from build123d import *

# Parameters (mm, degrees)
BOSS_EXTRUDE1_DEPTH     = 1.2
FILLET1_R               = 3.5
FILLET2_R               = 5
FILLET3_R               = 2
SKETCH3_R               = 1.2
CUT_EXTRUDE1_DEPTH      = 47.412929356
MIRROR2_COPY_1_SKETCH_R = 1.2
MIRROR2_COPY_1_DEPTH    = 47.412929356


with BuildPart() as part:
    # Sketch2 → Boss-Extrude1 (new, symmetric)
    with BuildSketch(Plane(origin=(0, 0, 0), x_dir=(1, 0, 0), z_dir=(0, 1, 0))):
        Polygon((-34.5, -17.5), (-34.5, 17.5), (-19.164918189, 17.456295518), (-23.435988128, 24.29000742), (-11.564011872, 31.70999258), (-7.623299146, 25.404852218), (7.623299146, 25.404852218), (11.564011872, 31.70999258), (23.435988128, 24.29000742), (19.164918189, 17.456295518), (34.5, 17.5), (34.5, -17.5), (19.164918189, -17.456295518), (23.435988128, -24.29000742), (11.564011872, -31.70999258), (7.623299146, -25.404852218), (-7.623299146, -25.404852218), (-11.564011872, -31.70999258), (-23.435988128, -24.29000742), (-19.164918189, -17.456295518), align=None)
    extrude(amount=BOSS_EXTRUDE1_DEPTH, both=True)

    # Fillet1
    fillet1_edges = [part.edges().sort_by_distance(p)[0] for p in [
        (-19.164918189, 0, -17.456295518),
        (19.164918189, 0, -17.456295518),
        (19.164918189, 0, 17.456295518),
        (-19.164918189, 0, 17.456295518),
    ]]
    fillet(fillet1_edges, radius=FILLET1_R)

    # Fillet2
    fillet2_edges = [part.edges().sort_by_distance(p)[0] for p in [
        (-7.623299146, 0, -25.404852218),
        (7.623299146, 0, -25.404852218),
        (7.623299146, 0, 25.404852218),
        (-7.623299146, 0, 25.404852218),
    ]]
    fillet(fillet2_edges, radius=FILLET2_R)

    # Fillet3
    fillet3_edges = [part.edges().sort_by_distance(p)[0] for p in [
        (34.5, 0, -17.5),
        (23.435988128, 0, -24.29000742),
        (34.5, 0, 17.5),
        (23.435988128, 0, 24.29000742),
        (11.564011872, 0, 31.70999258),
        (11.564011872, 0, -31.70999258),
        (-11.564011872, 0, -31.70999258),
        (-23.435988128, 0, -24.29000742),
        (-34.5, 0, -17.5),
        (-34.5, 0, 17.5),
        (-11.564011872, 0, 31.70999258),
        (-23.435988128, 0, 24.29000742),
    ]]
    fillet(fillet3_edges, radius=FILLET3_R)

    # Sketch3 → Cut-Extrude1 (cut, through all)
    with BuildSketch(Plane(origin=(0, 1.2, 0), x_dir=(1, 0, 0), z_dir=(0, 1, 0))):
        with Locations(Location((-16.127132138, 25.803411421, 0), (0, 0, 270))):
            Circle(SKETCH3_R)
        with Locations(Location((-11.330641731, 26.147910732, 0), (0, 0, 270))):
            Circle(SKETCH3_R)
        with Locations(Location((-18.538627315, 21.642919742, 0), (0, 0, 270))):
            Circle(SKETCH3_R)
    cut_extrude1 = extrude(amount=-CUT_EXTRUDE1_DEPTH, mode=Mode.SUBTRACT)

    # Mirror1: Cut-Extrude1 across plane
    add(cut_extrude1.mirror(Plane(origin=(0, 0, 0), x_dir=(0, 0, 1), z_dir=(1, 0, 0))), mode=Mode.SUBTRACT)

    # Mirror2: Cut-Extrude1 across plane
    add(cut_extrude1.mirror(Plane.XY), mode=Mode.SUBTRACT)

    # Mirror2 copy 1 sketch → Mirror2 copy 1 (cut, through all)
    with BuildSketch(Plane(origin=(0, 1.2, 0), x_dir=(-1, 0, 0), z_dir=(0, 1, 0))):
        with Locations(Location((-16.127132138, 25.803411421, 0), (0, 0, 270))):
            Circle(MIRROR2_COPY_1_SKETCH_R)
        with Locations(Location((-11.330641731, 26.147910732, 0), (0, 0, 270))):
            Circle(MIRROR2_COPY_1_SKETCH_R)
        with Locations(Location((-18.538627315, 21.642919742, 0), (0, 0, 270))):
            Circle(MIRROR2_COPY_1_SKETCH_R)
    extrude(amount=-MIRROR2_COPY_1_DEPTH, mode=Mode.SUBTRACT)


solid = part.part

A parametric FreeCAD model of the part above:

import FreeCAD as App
import Part
import Sketcher

V = App.Vector
Q = App.Units.Quantity


def edges_at(feature, points):
    """Names of the edges that pass closest to the given points."""
    edges = feature.Shape.Edges
    near = lambda p: min(range(len(edges)), key=lambda i: edges[i].distToShape(Part.Vertex(*p))[0])
    return sorted({f"Edge{near(p) + 1}" for p in points})

doc = App.newDocument("Part")
body = doc.addObject("PartDesign::Body", "Body")

# Sketch on XZ plane
sketch1 = body.newObject("Sketcher::SketchObject", "Sketch")
sketch1.AttachmentSupport = (doc.getObject("XZ_Plane"), [""])
sketch1.MapMode = "FlatFace"
sketch1.addGeometry([
    Part.LineSegment(V(-34, -18, 0), V(-34, 18, 0)),  # 0
    Part.LineSegment(V(-34, 18, 0), V(-19, 17, 0)),  # 1
    Part.LineSegment(V(-19, 17, 0), V(-23, 24, 0)),  # 2
    Part.LineSegment(V(-23, 24, 0), V(-12, 32, 0)),  # 3
    Part.LineSegment(V(-12, 32, 0), V(-8, 25, 0)),  # 4
    Part.LineSegment(V(-8, 25, 0), V(8, 25, 0)),  # 5
    Part.LineSegment(V(8, 25, 0), V(12, 32, 0)),  # 6
    Part.LineSegment(V(12, 32, 0), V(23, 24, 0)),  # 7
    Part.LineSegment(V(23, 24, 0), V(19, 17, 0)),  # 8
    Part.LineSegment(V(19, 17, 0), V(34, 18, 0)),  # 9
    Part.LineSegment(V(34, 18, 0), V(34, -18, 0)),  # 10
    Part.LineSegment(V(34, -18, 0), V(19, -17, 0)),  # 11
    Part.LineSegment(V(19, -17, 0), V(23, -24, 0)),  # 12
    Part.LineSegment(V(23, -24, 0), V(12, -32, 0)),  # 13
    Part.LineSegment(V(12, -32, 0), V(8, -25, 0)),  # 14
    Part.LineSegment(V(8, -25, 0), V(-8, -25, 0)),  # 15
    Part.LineSegment(V(-8, -25, 0), V(-12, -32, 0)),  # 16
    Part.LineSegment(V(-12, -32, 0), V(-23, -24, 0)),  # 17
    Part.LineSegment(V(-23, -24, 0), V(-19, -17, 0)),  # 18
    Part.LineSegment(V(-19, -17, 0), V(-34, -18, 0)),  # 19
], False)
sketch1.addConstraint([
    Sketcher.Constraint("Coincident", 0, 2, 1, 1),
    Sketcher.Constraint("Coincident", 1, 2, 2, 1),
    Sketcher.Constraint("Coincident", 2, 2, 3, 1),
    Sketcher.Constraint("Coincident", 3, 2, 4, 1),
    Sketcher.Constraint("Coincident", 4, 2, 5, 1),
    Sketcher.Constraint("Coincident", 5, 2, 6, 1),
    Sketcher.Constraint("Coincident", 6, 2, 7, 1),
    Sketcher.Constraint("Coincident", 7, 2, 8, 1),
    Sketcher.Constraint("Coincident", 8, 2, 9, 1),
    Sketcher.Constraint("Coincident", 9, 2, 10, 1),
    Sketcher.Constraint("Coincident", 10, 2, 11, 1),
    Sketcher.Constraint("Coincident", 11, 2, 12, 1),
    Sketcher.Constraint("Coincident", 12, 2, 13, 1),
    Sketcher.Constraint("Coincident", 13, 2, 14, 1),
    Sketcher.Constraint("Coincident", 14, 2, 15, 1),
    Sketcher.Constraint("Coincident", 15, 2, 16, 1),
    Sketcher.Constraint("Coincident", 16, 2, 17, 1),
    Sketcher.Constraint("Coincident", 17, 2, 18, 1),
    Sketcher.Constraint("Coincident", 18, 2, 19, 1),
    Sketcher.Constraint("Coincident", 19, 2, 0, 1),
    Sketcher.Constraint("Vertical", 0),
    Sketcher.Constraint("Horizontal", 5),
    Sketcher.Constraint("Vertical", 10),
    Sketcher.Constraint("Horizontal", 15),
    Sketcher.Constraint("Symmetric", 0, 2, 10, 2, -1, 1),
    Sketcher.Constraint("Symmetric", 1, 2, 11, 2, -1, 1),
    Sketcher.Constraint("Symmetric", 2, 2, 12, 2, -1, 1),
    Sketcher.Constraint("Symmetric", 3, 2, 13, 2, -1, 1),
    Sketcher.Constraint("Symmetric", 4, 2, 14, 2, -1, 1),
    Sketcher.Constraint("Symmetric", 6, 2, 16, 2, -1, 1),
    Sketcher.Constraint("Symmetric", 7, 2, 17, 2, -1, 1),
    Sketcher.Constraint("Symmetric", 8, 2, 18, 2, -1, 1),
    Sketcher.Constraint("Symmetric", 3, 2, 6, 2, -2),
    Sketcher.Constraint("Symmetric", 2, 2, 7, 2, -2),
    Sketcher.Constraint("Symmetric", 1, 2, 8, 2, -2),
    Sketcher.Constraint("Perpendicular", 2, 3),
    Sketcher.Constraint("Perpendicular", 3, 4),
    Sketcher.Constraint("Perpendicular", 6, 7),
    Sketcher.Constraint("Parallel", 8, 16),
    Sketcher.Constraint("Parallel", 9, 19),
    Sketcher.Constraint("Horizontal", 0, 2, 9, 2),
    Sketcher.Constraint("DistanceY", 0, 1, 0, 2, Q("35 mm")),
    Sketcher.Constraint("Distance", 3, Q("14 mm")),
    Sketcher.Constraint("DistanceX", 2, 2, 6, 2, Q("35 mm")),
    Sketcher.Constraint("DistanceX", 0, 2, -1, 1, Q("34.5 mm")),
    Sketcher.Constraint("DistanceX", 5, 1, 5, 2, Q("15.246598 mm")),
    Sketcher.Constraint("Distance", 2, Q("8.058639 mm")),
    Sketcher.Constraint("Distance", 4, Q("7.435322 mm")),
    Sketcher.Constraint("DistanceY", 11, 2, 8, 2, Q("34.912591 mm")),
])
pad1 = body.newObject("PartDesign::Pad", "Pad")
pad1.Profile = sketch1
pad1.Length = 2.4
pad1.Midplane = True
doc.recompute()

fillet = body.newObject("PartDesign::Fillet", "Fillet")
fillet.Base = (pad1, edges_at(pad1, [
    (-19.165, 0, -17.456),
    (19.165, 0, -17.456),
    (19.165, 0, 17.456),
    (-19.165, 0, 17.456),
]))
fillet.Radius = 3.5
doc.recompute()

fillet2 = body.newObject("PartDesign::Fillet", "Fillet001")
fillet2.Base = (fillet, edges_at(fillet, [
    (-7.623, 0, -25.405),
    (7.623, 0, -25.405),
    (7.623, 0, 25.405),
    (-7.623, 0, 25.405),
]))
fillet2.Radius = 5
doc.recompute()

fillet3 = body.newObject("PartDesign::Fillet", "Fillet002")
fillet3.Base = (fillet2, edges_at(fillet2, [
    (34.5, 0, -17.5),
    (23.436, 0, -24.29),
    (34.5, 0, 17.5),
    (23.436, 0, 24.29),
    (11.564, 0, 31.71),
    (11.564, 0, -31.71),
    (-11.564, 0, -31.71),
    (-23.436, 0, -24.29),
    (-34.5, 0, -17.5),
    (-34.5, 0, 17.5),
    (-11.564, 0, 31.71),
    (-23.436, 0, 24.29),
]))
fillet3.Radius = 2

# Sketch on XZ plane
sketch2 = body.newObject("Sketcher::SketchObject", "Sketch001")
sketch2.AttachmentSupport = (doc.getObject("XZ_Plane"), [""])
sketch2.MapMode = "FlatFace"
sketch2.AttachmentOffset = App.Placement(V(0, 0, -1.2), App.Rotation())
sketch2.addGeometry([
    Part.Circle(V(-16.1, -25.8, 0), V(0, 0, 1), 1.2),
    Part.Circle(V(-11.3, -26.1, 0), V(0, 0, 1), 1.2),
    Part.Circle(V(-18.5, -21.6, 0), V(0, 0, 1), 1.2),
], False)
sketch2.addConstraint([
    Sketcher.Constraint("Equal", 0, 1),
    Sketcher.Constraint("Equal", 1, 2),
    Sketcher.Constraint("Diameter", 0, Q("2.4 mm")),
    Sketcher.Constraint("DistanceY", 1, 3, 0, 3, Q("0.344499 mm")),
    Sketcher.Constraint("DistanceY", 0, 3, -1, 1, Q("25.803411 mm")),
    Sketcher.Constraint("DistanceX", 1, 3, -1, 1, Q("11.330642 mm")),
    Sketcher.Constraint("DistanceY", 2, 3, -1, 1, Q("21.64292 mm")),
    Sketcher.Constraint("DistanceX", 0, 3, 1, 3, Q("4.79649 mm")),
    Sketcher.Constraint("DistanceX", 2, 3, -1, 1, Q("18.538627 mm")),
])
pocket1 = body.newObject("PartDesign::Pocket", "Pocket")
pocket1.Profile = sketch2
pocket1.Type = "ThroughAll"
pocket1.Reversed = True
doc.recompute()

mirrored = body.newObject("PartDesign::Mirrored", "Mirrored")
mirrored.Originals = [pocket1]
mirrored.MirrorPlane = (doc.getObject("YZ_Plane"), [""])
body.Tip = mirrored
doc.recompute()

mirrored2 = body.newObject("PartDesign::Mirrored", "Mirrored001")
mirrored2.Originals = [pocket1]
mirrored2.MirrorPlane = (doc.getObject("XY_Plane"), [""])
body.Tip = mirrored2

# Sketch on XZ plane
sketch3 = body.newObject("Sketcher::SketchObject", "Sketch002")
sketch3.AttachmentSupport = (doc.getObject("XZ_Plane"), [""])
sketch3.MapMode = "FlatFace"
sketch3.AttachmentOffset = App.Placement(V(0, 0, -1.2), App.Rotation())
sketch3.addGeometry([
    Part.Circle(V(16.1, 25.8, 0), V(0, 0, 1), 1.2),
    Part.Circle(V(11.3, 26.1, 0), V(0, 0, 1), 1.2),
    Part.Circle(V(18.5, 21.6, 0), V(0, 0, 1), 1.2),
], False)
sketch3.addConstraint([
    Sketcher.Constraint("Equal", 0, 1),
    Sketcher.Constraint("Equal", 1, 2),
    Sketcher.Constraint("Diameter", 0, Q("2.4 mm")),
    Sketcher.Constraint("DistanceY", 0, 3, 1, 3, Q("0.344499 mm")),
    Sketcher.Constraint("DistanceY", -1, 1, 0, 3, Q("25.803411 mm")),
    Sketcher.Constraint("DistanceX", -1, 1, 1, 3, Q("11.330642 mm")),
    Sketcher.Constraint("DistanceY", -1, 1, 2, 3, Q("21.64292 mm")),
    Sketcher.Constraint("DistanceX", 1, 3, 0, 3, Q("4.79649 mm")),
    Sketcher.Constraint("DistanceX", -1, 1, 2, 3, Q("18.538627 mm")),
])
pocket2 = body.newObject("PartDesign::Pocket", "Pocket001")
pocket2.Profile = sketch3
pocket2.Type = "ThroughAll"
pocket2.Reversed = True

doc.recompute()
